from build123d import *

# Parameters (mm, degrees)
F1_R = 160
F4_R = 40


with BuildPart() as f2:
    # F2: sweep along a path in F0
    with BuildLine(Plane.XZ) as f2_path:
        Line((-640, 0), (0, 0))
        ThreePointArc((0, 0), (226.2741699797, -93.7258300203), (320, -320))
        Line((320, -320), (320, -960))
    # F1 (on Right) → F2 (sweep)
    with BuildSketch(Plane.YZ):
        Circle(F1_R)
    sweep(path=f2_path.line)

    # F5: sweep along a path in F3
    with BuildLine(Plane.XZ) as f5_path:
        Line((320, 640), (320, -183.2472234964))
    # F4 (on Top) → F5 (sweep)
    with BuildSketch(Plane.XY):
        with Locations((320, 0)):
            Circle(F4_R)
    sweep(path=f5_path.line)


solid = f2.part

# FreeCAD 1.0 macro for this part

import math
import FreeCAD as App
import Part
import Sketcher

V = App.Vector
Q = App.Units.Quantity

doc = App.newDocument("Part")
body = doc.addObject("PartDesign::Body", "Body")

# Sketch on YZ plane
sketch1 = body.newObject("Sketcher::SketchObject", "Sketch")
sketch1.AttachmentSupport = (doc.getObject("YZ_Plane"), [""])
sketch1.MapMode = "FlatFace"
sketch1.addGeometry(Part.Circle(V(0, 0, 0), V(0, 0, 1), 160), False)
sketch1.addConstraint([
    Sketcher.Constraint("Coincident", 0, 3, -1, 1),
    Sketcher.Constraint("Diameter", 0, Q("320 mm")),
])

# Sketch on XZ plane
sketch2 = body.newObject("Sketcher::SketchObject", "Sketch001")
sketch2.AttachmentSupport = (doc.getObject("XZ_Plane"), [""])
sketch2.MapMode = "FlatFace"
sketch2.addGeometry([
    Part.LineSegment(V(-640, 0, 0), V(0, 0, 0)),
    Part.ArcOfCircle(Part.Circle(V(0, -320, 0), V(0, 0, 1), 320), math.radians(0), math.radians(90)),
    Part.LineSegment(V(320, -320, 0), V(320, -960, 0)),
], False)
sketch2.addConstraint([
    Sketcher.Constraint("Tangent", 0, 2, 1, 2),
    Sketcher.Constraint("Tangent", 1, 1, 2, 1),
    Sketcher.Constraint("Horizontal", 0),
    Sketcher.Constraint("Vertical", 2),
    Sketcher.Constraint("Coincident", 0, 2, -1, 1),
    Sketcher.Constraint("Equal", 0, 2),
    Sketcher.Constraint("Radius", 1, Q("320 mm")),
    Sketcher.Constraint("DistanceX", 0, 1, 0, 2, Q("640 mm")),
])
doc.recompute()

additivepipe = body.newObject("PartDesign::AdditivePipe", "AdditivePipe")
additivepipe.Profile = sketch1
additivepipe.Spine = (sketch2, ["Edge1", "Edge2", "Edge3"])

# Sketch on XY plane
sketch3 = body.newObject("Sketcher::SketchObject", "Sketch002")
sketch3.AttachmentSupport = (doc.getObject("XY_Plane"), [""])
sketch3.MapMode = "FlatFace"
sketch3.addGeometry(Part.Circle(V(320, 0, 0), V(0, 0, 1), 40), False)
sketch3.addConstraint([
    Sketcher.Constraint("PointOnObject", 0, 3, -1),
    Sketcher.Constraint("Diameter", 0, Q("80 mm")),
    Sketcher.Constraint("DistanceX", -1, 1, 0, 3, Q("320 mm")),
])

# Sketch on XZ plane
sketch4 = body.newObject("Sketcher::SketchObject", "Sketch003")
sketch4.AttachmentSupport = (doc.getObject("XZ_Plane"), [""])
sketch4.MapMode = "FlatFace"
sketch4.addGeometry(Part.LineSegment(V(320, 640, 0), V(320, -183, 0)), False)
sketch4.addConstraint([
    Sketcher.Constraint("Vertical", 0),
    Sketcher.Constraint("DistanceX", -1, 1, 0, 1, Q("320 mm")),
    Sketcher.Constraint("DistanceY", -1, 1, 0, 1, Q("640 mm")),
    Sketcher.Constraint("DistanceY", 0, 2, 0, 1, Q("823.247223 mm")),
])
doc.recompute()

additivepipe2 = body.newObject("PartDesign::AdditivePipe", "AdditivePipe001")
additivepipe2.Profile = sketch3
additivepipe2.Spine = (sketch4, ["Edge1"])

doc.recompute()
